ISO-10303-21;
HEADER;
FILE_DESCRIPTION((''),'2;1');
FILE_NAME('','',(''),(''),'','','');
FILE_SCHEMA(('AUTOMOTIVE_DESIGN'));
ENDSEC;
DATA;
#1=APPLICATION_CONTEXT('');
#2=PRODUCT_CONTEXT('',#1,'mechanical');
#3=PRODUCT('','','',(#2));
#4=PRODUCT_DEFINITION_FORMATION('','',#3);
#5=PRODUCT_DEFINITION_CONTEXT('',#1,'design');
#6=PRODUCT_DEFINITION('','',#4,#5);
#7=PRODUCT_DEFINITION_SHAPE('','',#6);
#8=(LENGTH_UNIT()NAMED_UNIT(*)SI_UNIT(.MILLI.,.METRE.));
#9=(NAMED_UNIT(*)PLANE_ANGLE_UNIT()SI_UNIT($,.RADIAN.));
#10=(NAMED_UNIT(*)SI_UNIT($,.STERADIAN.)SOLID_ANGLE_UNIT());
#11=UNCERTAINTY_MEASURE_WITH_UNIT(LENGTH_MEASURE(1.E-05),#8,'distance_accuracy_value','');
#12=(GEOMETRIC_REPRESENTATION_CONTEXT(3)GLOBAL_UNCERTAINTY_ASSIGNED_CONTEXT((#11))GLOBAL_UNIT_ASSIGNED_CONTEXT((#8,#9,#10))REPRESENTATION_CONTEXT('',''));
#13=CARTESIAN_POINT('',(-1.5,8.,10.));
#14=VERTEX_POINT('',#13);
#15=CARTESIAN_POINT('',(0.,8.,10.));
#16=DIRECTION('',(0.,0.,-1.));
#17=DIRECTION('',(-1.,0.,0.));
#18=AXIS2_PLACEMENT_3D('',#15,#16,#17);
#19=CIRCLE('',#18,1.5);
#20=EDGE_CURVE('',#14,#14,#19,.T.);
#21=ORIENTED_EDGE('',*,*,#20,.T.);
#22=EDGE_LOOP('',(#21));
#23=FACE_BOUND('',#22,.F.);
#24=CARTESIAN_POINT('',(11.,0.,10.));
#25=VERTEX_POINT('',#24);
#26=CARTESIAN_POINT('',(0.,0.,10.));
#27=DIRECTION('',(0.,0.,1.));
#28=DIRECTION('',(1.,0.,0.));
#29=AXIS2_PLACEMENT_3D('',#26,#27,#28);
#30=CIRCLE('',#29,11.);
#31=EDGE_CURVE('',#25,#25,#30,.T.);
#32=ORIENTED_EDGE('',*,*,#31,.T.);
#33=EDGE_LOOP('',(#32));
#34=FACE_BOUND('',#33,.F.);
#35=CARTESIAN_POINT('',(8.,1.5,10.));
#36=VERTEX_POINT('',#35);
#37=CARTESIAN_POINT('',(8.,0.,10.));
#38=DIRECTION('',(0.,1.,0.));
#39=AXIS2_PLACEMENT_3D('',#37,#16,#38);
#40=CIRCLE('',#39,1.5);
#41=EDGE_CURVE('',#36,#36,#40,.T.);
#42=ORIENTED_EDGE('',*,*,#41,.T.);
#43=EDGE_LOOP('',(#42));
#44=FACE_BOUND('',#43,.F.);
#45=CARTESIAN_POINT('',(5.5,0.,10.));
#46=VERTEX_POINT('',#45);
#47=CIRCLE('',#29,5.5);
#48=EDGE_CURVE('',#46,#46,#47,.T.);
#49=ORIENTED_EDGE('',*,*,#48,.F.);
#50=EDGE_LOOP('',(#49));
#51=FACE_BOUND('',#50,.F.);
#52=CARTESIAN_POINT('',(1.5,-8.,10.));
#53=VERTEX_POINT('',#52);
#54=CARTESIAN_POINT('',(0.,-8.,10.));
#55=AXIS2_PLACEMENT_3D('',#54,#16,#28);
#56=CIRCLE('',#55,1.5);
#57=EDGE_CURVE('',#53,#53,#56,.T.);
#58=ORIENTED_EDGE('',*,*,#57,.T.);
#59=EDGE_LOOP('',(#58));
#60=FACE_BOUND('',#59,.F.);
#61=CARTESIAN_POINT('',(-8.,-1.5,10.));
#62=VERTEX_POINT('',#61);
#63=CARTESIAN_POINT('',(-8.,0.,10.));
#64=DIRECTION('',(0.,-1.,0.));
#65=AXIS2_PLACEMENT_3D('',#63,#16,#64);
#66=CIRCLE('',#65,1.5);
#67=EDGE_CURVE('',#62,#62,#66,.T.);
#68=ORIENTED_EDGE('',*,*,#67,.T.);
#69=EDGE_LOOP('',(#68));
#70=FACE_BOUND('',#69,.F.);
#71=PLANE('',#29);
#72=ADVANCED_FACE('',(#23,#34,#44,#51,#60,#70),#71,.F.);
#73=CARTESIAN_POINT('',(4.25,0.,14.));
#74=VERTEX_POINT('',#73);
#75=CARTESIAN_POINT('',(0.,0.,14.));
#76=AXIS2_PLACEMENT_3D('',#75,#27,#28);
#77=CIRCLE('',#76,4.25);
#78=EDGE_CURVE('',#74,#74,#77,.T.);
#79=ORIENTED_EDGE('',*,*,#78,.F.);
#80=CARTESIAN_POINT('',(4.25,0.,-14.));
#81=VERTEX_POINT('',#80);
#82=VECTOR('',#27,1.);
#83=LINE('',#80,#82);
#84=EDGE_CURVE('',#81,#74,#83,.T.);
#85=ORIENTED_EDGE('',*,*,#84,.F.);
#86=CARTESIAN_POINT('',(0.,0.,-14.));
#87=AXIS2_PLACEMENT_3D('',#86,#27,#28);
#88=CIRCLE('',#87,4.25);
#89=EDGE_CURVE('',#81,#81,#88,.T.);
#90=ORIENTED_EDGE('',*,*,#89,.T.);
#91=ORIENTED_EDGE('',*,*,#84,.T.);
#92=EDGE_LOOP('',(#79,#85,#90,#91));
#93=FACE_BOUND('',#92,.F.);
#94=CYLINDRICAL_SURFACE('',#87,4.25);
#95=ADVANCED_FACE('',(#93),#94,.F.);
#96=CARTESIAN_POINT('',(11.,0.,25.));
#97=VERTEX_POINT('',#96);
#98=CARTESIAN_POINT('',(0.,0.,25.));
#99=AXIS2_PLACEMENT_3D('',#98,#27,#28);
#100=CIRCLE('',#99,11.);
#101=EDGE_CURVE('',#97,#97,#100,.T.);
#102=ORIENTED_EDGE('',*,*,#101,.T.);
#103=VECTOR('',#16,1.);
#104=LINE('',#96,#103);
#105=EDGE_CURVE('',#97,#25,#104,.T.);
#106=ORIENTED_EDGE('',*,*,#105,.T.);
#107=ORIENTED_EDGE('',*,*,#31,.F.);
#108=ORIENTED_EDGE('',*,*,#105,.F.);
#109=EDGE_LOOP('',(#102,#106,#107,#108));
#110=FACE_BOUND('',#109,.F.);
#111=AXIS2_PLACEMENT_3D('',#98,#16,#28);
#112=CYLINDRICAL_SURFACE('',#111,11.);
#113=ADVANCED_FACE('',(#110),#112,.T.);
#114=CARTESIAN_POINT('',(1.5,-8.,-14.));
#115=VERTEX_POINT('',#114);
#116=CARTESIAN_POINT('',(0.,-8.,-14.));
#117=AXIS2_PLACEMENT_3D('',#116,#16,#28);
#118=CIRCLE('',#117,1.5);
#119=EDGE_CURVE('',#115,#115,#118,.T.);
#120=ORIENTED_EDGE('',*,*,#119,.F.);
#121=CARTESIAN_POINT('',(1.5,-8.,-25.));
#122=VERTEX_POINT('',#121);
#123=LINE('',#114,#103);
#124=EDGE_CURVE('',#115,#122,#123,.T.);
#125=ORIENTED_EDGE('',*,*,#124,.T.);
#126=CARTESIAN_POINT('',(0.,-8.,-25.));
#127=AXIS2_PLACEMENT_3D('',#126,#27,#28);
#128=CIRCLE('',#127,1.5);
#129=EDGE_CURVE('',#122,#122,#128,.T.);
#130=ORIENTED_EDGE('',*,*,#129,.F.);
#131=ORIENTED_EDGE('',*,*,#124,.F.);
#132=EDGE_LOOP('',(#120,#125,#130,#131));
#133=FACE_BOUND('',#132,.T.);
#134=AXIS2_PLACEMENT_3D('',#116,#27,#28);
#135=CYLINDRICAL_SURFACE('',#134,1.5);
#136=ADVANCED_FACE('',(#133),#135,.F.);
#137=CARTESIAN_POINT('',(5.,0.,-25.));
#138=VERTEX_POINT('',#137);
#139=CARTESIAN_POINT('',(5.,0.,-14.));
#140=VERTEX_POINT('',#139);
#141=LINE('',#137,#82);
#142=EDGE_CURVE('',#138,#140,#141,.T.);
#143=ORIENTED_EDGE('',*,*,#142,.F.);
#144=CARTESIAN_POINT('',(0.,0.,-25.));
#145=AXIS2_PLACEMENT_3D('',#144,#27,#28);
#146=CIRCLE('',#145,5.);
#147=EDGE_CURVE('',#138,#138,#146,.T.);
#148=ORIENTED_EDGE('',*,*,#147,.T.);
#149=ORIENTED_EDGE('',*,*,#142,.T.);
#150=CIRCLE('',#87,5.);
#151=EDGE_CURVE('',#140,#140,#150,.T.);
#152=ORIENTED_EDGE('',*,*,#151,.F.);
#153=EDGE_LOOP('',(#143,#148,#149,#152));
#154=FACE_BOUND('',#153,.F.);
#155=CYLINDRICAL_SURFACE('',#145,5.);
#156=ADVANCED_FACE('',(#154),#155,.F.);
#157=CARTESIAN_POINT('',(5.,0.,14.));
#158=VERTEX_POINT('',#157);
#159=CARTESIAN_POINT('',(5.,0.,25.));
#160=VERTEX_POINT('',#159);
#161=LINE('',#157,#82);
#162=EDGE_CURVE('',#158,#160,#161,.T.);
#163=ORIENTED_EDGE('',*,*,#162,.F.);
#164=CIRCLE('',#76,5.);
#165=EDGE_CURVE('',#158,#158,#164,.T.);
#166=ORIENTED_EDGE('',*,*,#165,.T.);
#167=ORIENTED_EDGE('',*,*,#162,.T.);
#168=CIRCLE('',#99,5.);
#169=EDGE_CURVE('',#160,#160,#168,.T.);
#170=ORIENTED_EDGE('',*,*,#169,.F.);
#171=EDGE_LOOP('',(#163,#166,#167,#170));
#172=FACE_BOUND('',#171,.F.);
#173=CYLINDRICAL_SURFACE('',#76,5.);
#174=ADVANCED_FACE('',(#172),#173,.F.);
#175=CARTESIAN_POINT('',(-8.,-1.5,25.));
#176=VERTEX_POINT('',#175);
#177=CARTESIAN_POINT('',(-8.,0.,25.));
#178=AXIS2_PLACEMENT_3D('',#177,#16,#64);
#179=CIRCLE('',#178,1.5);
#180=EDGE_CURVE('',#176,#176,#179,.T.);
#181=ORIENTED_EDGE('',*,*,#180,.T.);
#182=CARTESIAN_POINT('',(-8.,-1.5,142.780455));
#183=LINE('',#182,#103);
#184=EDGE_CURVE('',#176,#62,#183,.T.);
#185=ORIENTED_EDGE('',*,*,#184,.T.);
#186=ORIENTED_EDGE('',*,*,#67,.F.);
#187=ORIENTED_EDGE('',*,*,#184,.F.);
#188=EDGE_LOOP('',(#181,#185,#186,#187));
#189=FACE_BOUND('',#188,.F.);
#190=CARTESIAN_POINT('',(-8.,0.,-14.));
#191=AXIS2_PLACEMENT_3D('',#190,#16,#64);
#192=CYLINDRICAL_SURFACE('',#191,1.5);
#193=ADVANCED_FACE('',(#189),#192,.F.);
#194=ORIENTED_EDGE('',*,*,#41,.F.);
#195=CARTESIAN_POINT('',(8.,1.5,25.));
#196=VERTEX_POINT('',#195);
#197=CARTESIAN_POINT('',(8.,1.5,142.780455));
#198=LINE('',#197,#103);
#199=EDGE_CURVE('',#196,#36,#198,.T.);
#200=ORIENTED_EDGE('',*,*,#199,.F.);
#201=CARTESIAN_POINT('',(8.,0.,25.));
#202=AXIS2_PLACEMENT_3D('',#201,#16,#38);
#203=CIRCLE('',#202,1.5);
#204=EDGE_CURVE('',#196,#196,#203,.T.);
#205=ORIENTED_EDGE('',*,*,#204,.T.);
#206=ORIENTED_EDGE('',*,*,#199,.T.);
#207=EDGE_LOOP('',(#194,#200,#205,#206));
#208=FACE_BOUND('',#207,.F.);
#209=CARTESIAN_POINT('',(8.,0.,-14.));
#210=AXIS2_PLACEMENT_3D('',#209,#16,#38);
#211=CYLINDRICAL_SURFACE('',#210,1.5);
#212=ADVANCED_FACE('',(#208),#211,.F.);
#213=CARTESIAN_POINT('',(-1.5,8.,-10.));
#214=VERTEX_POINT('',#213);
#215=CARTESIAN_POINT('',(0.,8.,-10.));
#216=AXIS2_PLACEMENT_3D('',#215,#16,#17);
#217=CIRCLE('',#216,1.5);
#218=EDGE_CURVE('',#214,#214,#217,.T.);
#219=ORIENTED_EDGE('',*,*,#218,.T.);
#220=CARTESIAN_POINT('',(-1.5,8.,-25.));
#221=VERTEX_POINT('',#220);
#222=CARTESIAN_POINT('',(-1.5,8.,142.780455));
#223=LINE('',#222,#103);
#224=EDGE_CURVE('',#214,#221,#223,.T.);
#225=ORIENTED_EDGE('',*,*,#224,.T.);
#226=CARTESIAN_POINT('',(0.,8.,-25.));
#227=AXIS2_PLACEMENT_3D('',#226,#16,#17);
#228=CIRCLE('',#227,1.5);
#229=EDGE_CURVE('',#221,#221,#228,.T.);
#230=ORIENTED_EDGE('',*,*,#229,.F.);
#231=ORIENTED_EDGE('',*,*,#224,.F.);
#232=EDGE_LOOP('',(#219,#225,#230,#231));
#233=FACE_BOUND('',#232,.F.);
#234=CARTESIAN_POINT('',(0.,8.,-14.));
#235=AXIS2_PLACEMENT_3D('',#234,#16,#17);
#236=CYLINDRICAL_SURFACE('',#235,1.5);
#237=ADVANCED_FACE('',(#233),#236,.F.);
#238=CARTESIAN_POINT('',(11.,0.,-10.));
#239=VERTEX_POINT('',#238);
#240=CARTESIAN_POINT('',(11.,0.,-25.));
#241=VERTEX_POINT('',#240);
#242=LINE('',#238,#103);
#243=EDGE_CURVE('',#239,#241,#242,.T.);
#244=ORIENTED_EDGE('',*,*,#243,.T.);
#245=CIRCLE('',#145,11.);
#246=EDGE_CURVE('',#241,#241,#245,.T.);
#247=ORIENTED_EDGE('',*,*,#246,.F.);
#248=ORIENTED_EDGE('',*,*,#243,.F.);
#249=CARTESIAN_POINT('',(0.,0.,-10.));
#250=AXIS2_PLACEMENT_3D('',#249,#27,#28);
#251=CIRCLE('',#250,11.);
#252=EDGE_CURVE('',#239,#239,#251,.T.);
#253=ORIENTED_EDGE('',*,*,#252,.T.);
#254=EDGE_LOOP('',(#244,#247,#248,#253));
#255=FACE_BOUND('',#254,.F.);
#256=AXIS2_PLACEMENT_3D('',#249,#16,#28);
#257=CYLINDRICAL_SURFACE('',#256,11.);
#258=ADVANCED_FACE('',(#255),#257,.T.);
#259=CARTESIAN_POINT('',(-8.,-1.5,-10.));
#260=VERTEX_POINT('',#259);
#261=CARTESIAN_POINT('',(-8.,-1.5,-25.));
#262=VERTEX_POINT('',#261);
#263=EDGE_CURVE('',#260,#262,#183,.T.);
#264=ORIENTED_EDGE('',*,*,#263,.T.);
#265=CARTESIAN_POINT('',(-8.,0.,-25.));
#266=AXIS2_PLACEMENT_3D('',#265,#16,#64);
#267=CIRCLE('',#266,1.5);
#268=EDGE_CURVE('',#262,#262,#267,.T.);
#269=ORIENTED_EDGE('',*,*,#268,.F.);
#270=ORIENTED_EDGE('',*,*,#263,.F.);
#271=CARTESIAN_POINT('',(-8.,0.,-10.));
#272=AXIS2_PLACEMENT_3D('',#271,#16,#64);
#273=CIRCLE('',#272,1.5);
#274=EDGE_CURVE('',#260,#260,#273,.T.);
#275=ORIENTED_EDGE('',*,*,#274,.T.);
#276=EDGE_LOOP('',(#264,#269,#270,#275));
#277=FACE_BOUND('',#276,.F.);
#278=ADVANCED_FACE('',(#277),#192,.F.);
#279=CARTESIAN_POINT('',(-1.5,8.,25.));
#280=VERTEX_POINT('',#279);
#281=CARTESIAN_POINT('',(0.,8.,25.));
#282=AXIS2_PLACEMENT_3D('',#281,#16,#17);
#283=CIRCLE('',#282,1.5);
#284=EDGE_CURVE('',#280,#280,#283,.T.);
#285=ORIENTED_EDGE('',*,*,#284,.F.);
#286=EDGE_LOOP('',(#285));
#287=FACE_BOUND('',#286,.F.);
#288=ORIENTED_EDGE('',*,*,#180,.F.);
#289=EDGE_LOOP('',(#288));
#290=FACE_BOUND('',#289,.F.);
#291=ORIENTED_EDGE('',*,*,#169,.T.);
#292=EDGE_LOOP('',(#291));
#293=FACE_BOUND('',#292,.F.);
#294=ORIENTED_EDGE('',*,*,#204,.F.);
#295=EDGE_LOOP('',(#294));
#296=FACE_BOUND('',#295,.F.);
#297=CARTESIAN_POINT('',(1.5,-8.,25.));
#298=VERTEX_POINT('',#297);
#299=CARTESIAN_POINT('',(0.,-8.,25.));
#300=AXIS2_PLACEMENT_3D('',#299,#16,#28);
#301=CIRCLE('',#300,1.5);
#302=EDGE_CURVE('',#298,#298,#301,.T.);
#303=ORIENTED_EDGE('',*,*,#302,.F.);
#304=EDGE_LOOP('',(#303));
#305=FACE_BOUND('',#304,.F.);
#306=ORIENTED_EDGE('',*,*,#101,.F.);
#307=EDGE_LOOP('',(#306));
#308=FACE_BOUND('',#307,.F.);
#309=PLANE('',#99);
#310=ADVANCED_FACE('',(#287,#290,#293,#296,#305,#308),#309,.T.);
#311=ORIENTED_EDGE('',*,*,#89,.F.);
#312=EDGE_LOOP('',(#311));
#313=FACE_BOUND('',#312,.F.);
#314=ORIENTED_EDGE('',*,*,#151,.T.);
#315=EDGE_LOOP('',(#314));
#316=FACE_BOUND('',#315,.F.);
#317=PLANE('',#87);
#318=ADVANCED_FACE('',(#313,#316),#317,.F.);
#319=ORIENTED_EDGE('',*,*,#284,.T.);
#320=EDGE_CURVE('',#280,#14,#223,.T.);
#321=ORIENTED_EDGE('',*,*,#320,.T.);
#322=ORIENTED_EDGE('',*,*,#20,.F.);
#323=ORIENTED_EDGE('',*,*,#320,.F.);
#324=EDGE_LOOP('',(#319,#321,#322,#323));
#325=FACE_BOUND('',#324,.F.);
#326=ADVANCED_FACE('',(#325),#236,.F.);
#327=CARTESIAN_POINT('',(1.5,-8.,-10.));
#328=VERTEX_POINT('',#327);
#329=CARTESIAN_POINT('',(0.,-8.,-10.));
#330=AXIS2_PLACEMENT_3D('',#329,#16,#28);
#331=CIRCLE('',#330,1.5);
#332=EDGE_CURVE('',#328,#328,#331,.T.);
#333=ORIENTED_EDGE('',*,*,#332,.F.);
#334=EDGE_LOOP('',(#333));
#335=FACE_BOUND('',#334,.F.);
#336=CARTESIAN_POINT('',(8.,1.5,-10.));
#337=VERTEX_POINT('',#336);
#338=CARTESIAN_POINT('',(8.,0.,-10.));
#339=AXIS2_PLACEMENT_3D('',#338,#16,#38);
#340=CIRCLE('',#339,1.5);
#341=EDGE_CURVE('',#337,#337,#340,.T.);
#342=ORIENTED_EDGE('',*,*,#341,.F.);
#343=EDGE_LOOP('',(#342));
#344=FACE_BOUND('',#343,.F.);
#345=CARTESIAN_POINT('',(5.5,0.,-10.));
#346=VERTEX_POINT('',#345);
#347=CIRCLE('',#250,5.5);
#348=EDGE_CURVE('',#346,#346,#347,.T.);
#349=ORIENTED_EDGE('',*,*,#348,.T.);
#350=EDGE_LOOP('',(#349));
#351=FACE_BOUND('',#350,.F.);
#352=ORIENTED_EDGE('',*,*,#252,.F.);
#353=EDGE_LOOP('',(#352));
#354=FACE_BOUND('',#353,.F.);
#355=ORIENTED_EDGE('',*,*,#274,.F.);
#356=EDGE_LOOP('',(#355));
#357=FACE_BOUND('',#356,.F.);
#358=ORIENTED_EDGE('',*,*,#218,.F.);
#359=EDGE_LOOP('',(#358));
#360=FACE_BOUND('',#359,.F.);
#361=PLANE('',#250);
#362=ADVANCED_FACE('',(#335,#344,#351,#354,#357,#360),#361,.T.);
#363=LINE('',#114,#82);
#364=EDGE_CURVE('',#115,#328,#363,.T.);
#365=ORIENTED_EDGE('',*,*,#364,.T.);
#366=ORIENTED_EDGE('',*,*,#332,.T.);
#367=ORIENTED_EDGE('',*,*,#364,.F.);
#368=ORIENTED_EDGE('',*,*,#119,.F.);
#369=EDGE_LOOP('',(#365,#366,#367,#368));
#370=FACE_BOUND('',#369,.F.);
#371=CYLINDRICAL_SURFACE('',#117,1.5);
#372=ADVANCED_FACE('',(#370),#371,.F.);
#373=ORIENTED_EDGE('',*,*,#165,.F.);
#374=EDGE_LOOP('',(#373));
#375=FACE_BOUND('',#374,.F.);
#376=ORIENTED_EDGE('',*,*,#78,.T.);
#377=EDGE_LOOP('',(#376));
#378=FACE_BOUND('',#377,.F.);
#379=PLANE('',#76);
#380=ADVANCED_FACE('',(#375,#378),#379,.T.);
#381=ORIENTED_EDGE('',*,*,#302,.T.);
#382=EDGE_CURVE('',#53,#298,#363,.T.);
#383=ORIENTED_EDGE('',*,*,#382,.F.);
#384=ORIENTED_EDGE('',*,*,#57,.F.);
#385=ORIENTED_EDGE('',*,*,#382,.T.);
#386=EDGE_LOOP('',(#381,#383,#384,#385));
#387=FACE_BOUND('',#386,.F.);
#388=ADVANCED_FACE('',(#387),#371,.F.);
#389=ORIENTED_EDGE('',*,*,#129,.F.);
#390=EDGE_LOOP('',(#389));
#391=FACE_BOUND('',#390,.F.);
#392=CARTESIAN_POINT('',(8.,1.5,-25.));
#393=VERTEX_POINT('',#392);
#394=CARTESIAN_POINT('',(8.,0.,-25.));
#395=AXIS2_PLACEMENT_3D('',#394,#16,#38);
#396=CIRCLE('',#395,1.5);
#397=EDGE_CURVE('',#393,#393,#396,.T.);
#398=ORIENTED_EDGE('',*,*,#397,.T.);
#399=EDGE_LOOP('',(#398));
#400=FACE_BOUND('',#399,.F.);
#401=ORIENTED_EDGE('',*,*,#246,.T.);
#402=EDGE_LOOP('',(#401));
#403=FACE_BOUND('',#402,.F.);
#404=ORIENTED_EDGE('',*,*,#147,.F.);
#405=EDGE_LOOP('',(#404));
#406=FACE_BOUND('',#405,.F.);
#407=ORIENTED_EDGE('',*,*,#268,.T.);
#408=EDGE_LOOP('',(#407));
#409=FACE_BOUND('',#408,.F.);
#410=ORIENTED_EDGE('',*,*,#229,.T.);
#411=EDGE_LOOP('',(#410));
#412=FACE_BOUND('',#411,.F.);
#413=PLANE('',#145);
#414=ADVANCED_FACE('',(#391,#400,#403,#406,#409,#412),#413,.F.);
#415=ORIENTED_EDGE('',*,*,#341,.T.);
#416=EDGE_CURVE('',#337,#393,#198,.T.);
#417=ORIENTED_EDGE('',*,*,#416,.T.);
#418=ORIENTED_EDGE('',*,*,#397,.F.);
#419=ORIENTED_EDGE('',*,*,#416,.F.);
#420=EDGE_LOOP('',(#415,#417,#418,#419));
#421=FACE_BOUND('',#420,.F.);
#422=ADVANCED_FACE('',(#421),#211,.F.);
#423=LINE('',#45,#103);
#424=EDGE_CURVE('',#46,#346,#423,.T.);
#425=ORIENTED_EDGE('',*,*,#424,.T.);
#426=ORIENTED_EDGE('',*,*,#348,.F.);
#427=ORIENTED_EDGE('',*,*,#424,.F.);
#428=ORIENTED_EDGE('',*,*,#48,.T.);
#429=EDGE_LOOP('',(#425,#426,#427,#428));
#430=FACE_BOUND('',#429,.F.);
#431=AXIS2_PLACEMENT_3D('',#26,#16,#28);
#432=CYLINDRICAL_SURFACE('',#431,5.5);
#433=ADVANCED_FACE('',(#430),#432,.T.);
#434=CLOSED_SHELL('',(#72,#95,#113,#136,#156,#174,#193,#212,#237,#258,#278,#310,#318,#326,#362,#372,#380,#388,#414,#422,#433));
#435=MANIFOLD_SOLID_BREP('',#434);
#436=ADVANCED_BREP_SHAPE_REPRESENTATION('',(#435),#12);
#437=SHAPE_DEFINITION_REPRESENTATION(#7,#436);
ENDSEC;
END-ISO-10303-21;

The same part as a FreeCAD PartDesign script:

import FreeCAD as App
import Part
import Sketcher
from FreeCAD import Vector


def add_polygon(sketch, points):
    """Adds a closed chain of lines whose ends are joined by coincident constraints."""
    first, n = sketch.GeometryCount, len(points)
    for a, b in zip(points, points[1:] + points[:1]):
        sketch.addGeometry(Part.LineSegment(App.Vector(*a, 0), App.Vector(*b, 0)), False)
    for i in range(n):
        sketch.addConstraint(Sketcher.Constraint("Coincident", first + i, 2, first + (i + 1) % n, 1))

doc = App.newDocument("Part")
body = doc.addObject("PartDesign::Body", "Body")

# Sketch on XZ plane
sketch1 = body.newObject("Sketcher::SketchObject", "Sketch")
sketch1.AttachmentSupport = (doc.getObject("XZ_Plane"), [""])
sketch1.MapMode = "FlatFace"
add_polygon(sketch1, [(5, -14), (5, -25), (11, -25), (11, -10), (5.5, -10), (5.5, 10), (11, 10), (11, 25), (5, 25), (5, 14), (4.2, 14), (4.2, -14)])  # lines 0-11
sketch1.addConstraint(Sketcher.Constraint("Vertical", 0))
sketch1.addConstraint(Sketcher.Constraint("Horizontal", 1))
sketch1.addConstraint(Sketcher.Constraint("Vertical", 2))
sketch1.addConstraint(Sketcher.Constraint("Horizontal", 3))
sketch1.addConstraint(Sketcher.Constraint("Vertical", 4))
sketch1.addConstraint(Sketcher.Constraint("Horizontal", 5))
sketch1.addConstraint(Sketcher.Constraint("Vertical", 6))
sketch1.addConstraint(Sketcher.Constraint("Horizontal", 7))
sketch1.addConstraint(Sketcher.Constraint("Vertical", 8))
sketch1.addConstraint(Sketcher.Constraint("Horizontal", 9))
sketch1.addConstraint(Sketcher.Constraint("Vertical", 10))
sketch1.addConstraint(Sketcher.Constraint("Horizontal", 11))
sketch1.addConstraint(Sketcher.Constraint("Symmetric", 2, 2, 5, 2, -1))
sketch1.addConstraint(Sketcher.Constraint("Symmetric", 0, 2, 7, 2, -1))
sketch1.addConstraint(Sketcher.Constraint("Equal", 0, 8))
sketch1.addConstraint(Sketcher.Constraint("DistanceX", 1, 1, 1, 2, 6.0))
sketch1.addConstraint(Sketcher.Constraint("DistanceY", 0, 2, 0, 1, 11.0))
sketch1.addConstraint(Sketcher.Constraint("DistanceY", 2, 1, 2, 2, 15.0))
sketch1.addConstraint(Sketcher.Constraint("DistanceY", 4, 1, 4, 2, 20.0))
sketch1.addConstraint(Sketcher.Constraint("DistanceX", 3, 2, 3, 1, 5.5))
sketch1.addConstraint(Sketcher.Constraint("DistanceX", -1, 1, 0, 2, 5.0))
sketch1.addConstraint(Sketcher.Constraint("DistanceX", 9, 2, 9, 1, 0.75))
revolution = body.newObject("PartDesign::Revolution", "Revolution")
revolution.Profile = sketch1
revolution.ReferenceAxis = (sketch1, ["V_Axis"])
revolution.Angle = 360

# Sketch on XY plane
sketch2 = body.newObject("Sketcher::SketchObject", "Sketch001")
sketch2.AttachmentSupport = (doc.getObject("XY_Plane"), [""])
sketch2.MapMode = "FlatFace"
sketch2.AttachmentOffset = App.Placement(Vector(0, 0, -14), App.Rotation())
sketch2.addGeometry(Part.Circle(Vector(0, -8, 0), Vector(0, 0, 1), 1.5), False)
sketch2.addConstraint(Sketcher.Constraint("PointOnObject", 0, 3, -2))
sketch2.addConstraint(Sketcher.Constraint("Diameter", 0, 3.0))
sketch2.addConstraint(Sketcher.Constraint("DistanceY", 0, 3, -1, 1, 8.0))
pocket1 = body.newObject("PartDesign::Pocket", "Pocket")
pocket1.Profile = sketch2
pocket1.Type = "ThroughAll"
pocket1.Midplane = True
doc.recompute()

polarpattern = body.newObject("PartDesign::PolarPattern", "PolarPattern")
polarpattern.Originals = [pocket1]
polarpattern.Axis = (doc.getObject("Z_Axis"), [""])
polarpattern.Angle = 360
polarpattern.Occurrences = 4
body.Tip = polarpattern

doc.recompute()
